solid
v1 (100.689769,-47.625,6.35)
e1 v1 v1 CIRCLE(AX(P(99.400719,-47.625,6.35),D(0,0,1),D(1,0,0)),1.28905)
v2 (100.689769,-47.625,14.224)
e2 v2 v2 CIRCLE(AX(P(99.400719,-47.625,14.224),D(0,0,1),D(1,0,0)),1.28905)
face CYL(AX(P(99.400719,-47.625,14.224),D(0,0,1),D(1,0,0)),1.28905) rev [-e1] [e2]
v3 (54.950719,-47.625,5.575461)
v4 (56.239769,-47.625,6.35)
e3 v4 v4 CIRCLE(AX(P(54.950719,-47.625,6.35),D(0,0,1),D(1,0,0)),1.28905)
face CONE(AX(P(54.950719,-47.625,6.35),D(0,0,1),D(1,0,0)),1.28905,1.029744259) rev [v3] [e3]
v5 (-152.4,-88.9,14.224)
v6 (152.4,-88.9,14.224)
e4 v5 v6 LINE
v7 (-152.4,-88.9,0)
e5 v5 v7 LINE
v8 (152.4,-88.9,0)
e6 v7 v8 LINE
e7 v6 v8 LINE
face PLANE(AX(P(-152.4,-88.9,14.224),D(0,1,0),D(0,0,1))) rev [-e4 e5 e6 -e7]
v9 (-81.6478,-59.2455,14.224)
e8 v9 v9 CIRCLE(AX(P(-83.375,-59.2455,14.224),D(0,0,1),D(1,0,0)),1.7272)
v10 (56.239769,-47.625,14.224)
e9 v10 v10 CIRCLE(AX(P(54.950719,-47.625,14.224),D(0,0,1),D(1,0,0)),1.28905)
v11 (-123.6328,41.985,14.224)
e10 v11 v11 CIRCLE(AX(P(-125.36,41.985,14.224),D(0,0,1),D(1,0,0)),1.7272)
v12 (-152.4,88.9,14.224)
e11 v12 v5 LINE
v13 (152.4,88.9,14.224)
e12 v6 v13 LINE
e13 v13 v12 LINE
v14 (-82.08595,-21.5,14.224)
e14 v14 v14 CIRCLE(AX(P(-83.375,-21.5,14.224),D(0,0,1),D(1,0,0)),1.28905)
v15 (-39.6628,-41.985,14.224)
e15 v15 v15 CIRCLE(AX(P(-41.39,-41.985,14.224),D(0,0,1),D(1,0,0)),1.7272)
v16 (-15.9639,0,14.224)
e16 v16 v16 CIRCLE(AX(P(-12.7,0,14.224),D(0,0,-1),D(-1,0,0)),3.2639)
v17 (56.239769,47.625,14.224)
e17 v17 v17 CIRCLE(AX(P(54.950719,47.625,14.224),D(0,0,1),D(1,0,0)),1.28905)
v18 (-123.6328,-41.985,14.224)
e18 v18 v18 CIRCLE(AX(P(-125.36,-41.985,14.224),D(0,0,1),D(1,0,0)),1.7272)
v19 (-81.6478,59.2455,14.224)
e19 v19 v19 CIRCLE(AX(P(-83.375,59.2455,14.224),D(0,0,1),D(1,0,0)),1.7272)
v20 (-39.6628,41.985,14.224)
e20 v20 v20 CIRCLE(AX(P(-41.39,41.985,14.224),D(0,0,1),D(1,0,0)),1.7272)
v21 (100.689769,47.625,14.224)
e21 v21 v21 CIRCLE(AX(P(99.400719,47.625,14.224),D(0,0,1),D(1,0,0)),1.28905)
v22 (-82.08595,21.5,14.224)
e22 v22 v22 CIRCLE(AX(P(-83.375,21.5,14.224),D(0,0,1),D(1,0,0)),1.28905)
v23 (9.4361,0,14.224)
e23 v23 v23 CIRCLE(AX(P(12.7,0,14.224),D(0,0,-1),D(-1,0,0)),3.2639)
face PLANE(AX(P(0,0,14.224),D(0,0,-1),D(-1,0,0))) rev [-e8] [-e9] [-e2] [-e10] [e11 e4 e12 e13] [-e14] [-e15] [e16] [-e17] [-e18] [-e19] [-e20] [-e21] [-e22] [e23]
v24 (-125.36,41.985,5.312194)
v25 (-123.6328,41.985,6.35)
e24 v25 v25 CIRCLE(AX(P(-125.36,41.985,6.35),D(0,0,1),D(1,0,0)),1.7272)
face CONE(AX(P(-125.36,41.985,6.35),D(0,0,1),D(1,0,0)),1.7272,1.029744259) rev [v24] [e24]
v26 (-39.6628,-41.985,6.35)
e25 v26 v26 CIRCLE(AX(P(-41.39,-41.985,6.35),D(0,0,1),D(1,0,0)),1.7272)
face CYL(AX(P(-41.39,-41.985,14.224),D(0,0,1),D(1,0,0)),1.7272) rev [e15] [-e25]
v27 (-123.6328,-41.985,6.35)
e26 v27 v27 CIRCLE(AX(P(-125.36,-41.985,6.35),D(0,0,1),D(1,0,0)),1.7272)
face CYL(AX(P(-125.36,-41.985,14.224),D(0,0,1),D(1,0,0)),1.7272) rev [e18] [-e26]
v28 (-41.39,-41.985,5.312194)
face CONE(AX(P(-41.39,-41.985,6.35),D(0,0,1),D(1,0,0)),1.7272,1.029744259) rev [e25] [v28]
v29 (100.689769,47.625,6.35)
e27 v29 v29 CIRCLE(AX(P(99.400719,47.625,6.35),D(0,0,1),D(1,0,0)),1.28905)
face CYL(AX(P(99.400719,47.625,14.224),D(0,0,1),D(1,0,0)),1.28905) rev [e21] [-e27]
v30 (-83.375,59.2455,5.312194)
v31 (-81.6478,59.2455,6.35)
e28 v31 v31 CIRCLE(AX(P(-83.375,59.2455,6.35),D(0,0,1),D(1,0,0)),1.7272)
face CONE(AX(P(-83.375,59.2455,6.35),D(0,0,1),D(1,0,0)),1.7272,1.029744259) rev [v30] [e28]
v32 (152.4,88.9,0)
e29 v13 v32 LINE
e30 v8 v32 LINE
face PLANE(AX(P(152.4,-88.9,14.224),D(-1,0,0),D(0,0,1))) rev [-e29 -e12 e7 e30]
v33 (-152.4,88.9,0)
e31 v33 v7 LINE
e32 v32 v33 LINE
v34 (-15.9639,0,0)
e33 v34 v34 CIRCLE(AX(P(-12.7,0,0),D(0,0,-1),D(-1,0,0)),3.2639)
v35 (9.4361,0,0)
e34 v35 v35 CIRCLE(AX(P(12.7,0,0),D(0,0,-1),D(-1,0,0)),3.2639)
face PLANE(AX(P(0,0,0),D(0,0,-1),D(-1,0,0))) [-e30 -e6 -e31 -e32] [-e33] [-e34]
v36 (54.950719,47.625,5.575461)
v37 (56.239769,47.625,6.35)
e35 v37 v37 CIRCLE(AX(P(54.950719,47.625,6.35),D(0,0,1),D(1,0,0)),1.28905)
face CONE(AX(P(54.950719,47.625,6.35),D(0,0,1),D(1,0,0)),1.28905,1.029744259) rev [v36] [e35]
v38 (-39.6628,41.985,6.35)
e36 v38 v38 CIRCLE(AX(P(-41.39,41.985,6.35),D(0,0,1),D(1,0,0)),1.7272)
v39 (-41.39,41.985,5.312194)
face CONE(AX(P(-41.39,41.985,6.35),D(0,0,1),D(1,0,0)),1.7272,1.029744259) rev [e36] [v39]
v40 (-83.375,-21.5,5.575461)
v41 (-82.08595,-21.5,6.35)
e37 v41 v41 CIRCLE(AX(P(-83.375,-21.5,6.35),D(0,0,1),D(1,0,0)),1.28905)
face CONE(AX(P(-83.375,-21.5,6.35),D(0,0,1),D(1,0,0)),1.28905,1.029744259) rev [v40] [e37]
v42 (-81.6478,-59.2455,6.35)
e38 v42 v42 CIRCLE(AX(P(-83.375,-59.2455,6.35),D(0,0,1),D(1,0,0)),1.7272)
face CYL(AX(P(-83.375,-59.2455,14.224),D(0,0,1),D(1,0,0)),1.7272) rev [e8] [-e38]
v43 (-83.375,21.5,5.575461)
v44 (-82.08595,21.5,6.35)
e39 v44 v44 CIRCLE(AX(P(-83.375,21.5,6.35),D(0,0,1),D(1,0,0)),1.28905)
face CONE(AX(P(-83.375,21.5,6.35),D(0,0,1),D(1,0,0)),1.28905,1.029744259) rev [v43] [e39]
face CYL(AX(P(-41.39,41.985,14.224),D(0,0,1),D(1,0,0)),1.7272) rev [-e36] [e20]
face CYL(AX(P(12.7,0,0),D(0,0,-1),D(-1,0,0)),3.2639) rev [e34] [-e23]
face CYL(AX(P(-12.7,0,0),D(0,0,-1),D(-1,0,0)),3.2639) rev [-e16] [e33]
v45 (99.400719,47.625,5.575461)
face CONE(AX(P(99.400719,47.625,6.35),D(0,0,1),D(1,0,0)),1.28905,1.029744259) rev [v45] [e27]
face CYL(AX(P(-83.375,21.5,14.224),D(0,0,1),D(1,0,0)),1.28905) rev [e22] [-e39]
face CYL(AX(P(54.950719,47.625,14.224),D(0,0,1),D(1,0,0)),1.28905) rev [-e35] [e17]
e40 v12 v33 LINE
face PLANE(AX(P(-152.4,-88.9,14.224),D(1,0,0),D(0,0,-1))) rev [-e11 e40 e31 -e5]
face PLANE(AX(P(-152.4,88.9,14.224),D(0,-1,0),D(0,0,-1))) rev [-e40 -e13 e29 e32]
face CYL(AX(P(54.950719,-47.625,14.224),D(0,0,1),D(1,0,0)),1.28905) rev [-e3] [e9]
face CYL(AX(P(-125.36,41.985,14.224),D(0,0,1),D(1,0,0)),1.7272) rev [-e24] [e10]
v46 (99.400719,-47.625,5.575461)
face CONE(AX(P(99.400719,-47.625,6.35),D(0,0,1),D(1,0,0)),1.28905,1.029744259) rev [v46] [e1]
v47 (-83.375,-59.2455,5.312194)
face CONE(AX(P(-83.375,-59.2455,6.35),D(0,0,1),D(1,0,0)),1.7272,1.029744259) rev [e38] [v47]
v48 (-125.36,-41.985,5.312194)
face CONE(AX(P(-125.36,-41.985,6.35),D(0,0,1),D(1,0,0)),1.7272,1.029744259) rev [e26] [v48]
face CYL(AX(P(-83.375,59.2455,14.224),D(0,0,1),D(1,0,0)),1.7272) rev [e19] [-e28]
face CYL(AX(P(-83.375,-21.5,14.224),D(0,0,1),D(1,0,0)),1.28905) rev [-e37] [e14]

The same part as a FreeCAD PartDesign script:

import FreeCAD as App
import Part
import Sketcher
from FreeCAD import Vector
Q = App.Units.Quantity

doc = App.newDocument("Part")
body = doc.addObject("PartDesign::Body", "Body")

# Sketch on XY plane
sketch1 = body.newObject("Sketcher::SketchObject", "Sketch")
sketch1.AttachmentSupport = (doc.getObject("XY_Plane"), [""])
sketch1.MapMode = "FlatFace"
sketch1.addGeometry([
    Part.LineSegment(Vector(-152.4, 88.9, 0), Vector(-152.4, -88.9, 0)),
    Part.LineSegment(Vector(-152.4, -88.9, 0), Vector(152.4, -88.9, 0)),
    Part.LineSegment(Vector(152.4, -88.9, 0), Vector(152.4, 88.9, 0)),
    Part.LineSegment(Vector(152.4, 88.9, 0), Vector(-152.4, 88.9, 0)),
], False)
sketch1.addConstraint([
    Sketcher.Constraint("Coincident", 0, 2, 1, 1),
    Sketcher.Constraint("Coincident", 1, 2, 2, 1),
    Sketcher.Constraint("Coincident", 2, 2, 3, 1),
    Sketcher.Constraint("Coincident", 3, 2, 0, 1),
    Sketcher.Constraint("Vertical", 0),
    Sketcher.Constraint("Horizontal", 1),
    Sketcher.Constraint("Vertical", 2),
    Sketcher.Constraint("Horizontal", 3),
    Sketcher.Constraint("Symmetric", 0, 2, 2, 2, -1, 1),
    Sketcher.Constraint("DistanceX", 1, 1, 1, 2, Q("12 in")),
    Sketcher.Constraint("DistanceY", 0, 2, 0, 1, Q("7 in")),
])
pad1 = body.newObject("PartDesign::Pad", "Pad")
pad1.Profile = sketch1
pad1.Length = Q("0.56 in")

# Sketch on XY plane
sketch2 = body.newObject("Sketcher::SketchObject", "Sketch001")
sketch2.AttachmentSupport = (doc.getObject("XY_Plane"), [""])
sketch2.MapMode = "FlatFace"
sketch2.AttachmentOffset = App.Placement(Vector(0, 0, 0.56 * 25.4), App.Rotation())
sketch2.addGeometry([
    Part.Circle(Vector(-41.39, 41.985, 0), Vector(0, 0, 1), 1.7272),  # 0
    Part.Circle(Vector(-41.39, -41.985, 0), Vector(0, 0, 1), 1.7272),  # 1
    Part.Circle(Vector(-125.36, -41.985, 0), Vector(0, 0, 1), 1.7272),  # 2
    Part.Circle(Vector(-125.36, 41.985, 0), Vector(0, 0, 1), 1.7272),  # 3
    Part.Circle(Vector(-83.375, 59.2455, 0), Vector(0, 0, 1), 1.7272),  # 4
    Part.Circle(Vector(-83.375, -59.2455, 0), Vector(0, 0, 1), 1.7272),  # 5
], False)
sketch2.addConstraint([
    Sketcher.Constraint("Equal", 0, 1),
    Sketcher.Constraint("Equal", 1, 2),
    Sketcher.Constraint("Equal", 2, 3),
    Sketcher.Constraint("Equal", 3, 4),
    Sketcher.Constraint("Equal", 4, 5),
    Sketcher.Constraint("Symmetric", 0, 3, 1, 3, -1),
    Sketcher.Constraint("Symmetric", 2, 3, 3, 3, -1),
    Sketcher.Constraint("Symmetric", 4, 3, 5, 3, -1),
    Sketcher.Constraint("Horizontal", 1, 3, 2, 3),
    Sketcher.Constraint("Diameter", 0, Q("0.136 in")),
    Sketcher.Constraint("DistanceY", 5, 3, 4, 3, Q("4.665 in")),
    Sketcher.Constraint("DistanceX", 0, 3, -1, 1, 41.39),
    Sketcher.Constraint("DistanceY", -1, 1, 0, 3, 41.985),
    Sketcher.Constraint("DistanceX", 2, 3, -1, 1, 125.36),
    Sketcher.Constraint("DistanceX", 4, 3, -1, 1, 83.375),
])
doc.recompute()
hole = body.newObject("PartDesign::Hole", "Hole")
hole.Profile = sketch2
hole.ThreadType = "None"
hole.Diameter = Q("0.136 in")
hole.DepthType = "Dimension"
hole.Depth = Q("0.31 in")
hole.DrillPoint = "Angled"
hole.DrillPointAngle = 118

# Sketch on XY plane
sketch3 = body.newObject("Sketcher::SketchObject", "Sketch002")
sketch3.AttachmentSupport = (doc.getObject("XY_Plane"), [""])
sketch3.MapMode = "FlatFace"
sketch3.AttachmentOffset = App.Placement(Vector(0, 0, 0.56 * 25.4), App.Rotation())
sketch3.addGeometry([
    Part.Circle(Vector(-83.375, 21.5, 0), Vector(0, 0, 1), 1.28905),  # 0
    Part.Circle(Vector(-83.375, -21.5, 0), Vector(0, 0, 1), 1.28905),  # 1
    Part.Circle(Vector(54.950719, 47.625, 0), Vector(0, 0, 1), 1.28905),  # 2
    Part.Circle(Vector(99.400719, 47.625, 0), Vector(0, 0, 1), 1.28905),  # 3
    Part.Circle(Vector(99.400719, -47.625, 0), Vector(0, 0, 1), 1.28905),  # 4
    Part.Circle(Vector(54.950719, -47.625, 0), Vector(0, 0, 1), 1.28905),  # 5
], False)
sketch3.addConstraint([
    Sketcher.Constraint("Equal", 0, 1),
    Sketcher.Constraint("Equal", 1, 2),
    Sketcher.Constraint("Equal", 2, 3),
    Sketcher.Constraint("Equal", 3, 4),
    Sketcher.Constraint("Equal", 4, 5),
    Sketcher.Constraint("Symmetric", 0, 3, 1, 3, -1),
    Sketcher.Constraint("Symmetric", 3, 3, 4, 3, -1),
    Sketcher.Constraint("Symmetric", 2, 3, 5, 3, -1),
    Sketcher.Constraint("Horizontal", 2, 3, 3, 3),
    Sketcher.Constraint("Diameter", 0, Q("0.1015 in")),
    Sketcher.Constraint("DistanceX", 2, 3, 3, 3, Q("1.75 in")),
    Sketcher.Constraint("DistanceY", 4, 3, 3, 3, Q("3.75 in")),
    Sketcher.Constraint("DistanceX", 0, 3, -1, 1, 83.375),
    Sketcher.Constraint("DistanceY", -1, 1, 0, 3, 21.5),
    Sketcher.Constraint("DistanceX", -1, 1, 2, 3, 54.950719),
])
doc.recompute()
hole2 = body.newObject("PartDesign::Hole", "Hole001")
hole2.Profile = sketch3
hole2.ThreadType = "None"
hole2.Diameter = Q("0.1015 in")
hole2.DepthType = "Dimension"
hole2.Depth = Q("0.31 in")
hole2.DrillPoint = "Angled"
hole2.DrillPointAngle = 118

# Sketch on XY plane
sketch4 = body.newObject("Sketcher::SketchObject", "Sketch003")
sketch4.AttachmentSupport = (doc.getObject("XY_Plane"), [""])
sketch4.MapMode = "FlatFace"
sketch4.addGeometry([
    Part.Circle(Vector(-12.7, 0, 0), Vector(0, 0, 1), 3.2639),
    Part.Circle(Vector(12.7, 0, 0), Vector(0, 0, 1), 3.2639),
], False)
sketch4.addConstraint([
    Sketcher.Constraint("Equal", 0, 1),
    Sketcher.Constraint("Symmetric", 0, 3, 1, 3, -1, 1),
    Sketcher.Constraint("PointOnObject", 0, 3, -1),
    Sketcher.Constraint("Diameter", 0, Q("0.257 in")),
    Sketcher.Constraint("DistanceX", 0, 3, 1, 3, Q("1 in")),
])
doc.recompute()
hole3 = body.newObject("PartDesign::Hole", "Hole002")
hole3.Profile = sketch4
hole3.ThreadType = "None"
hole3.Diameter = Q("0.257 in")
hole3.DepthType = "ThroughAll"
hole3.Reversed = True

doc.recompute()
